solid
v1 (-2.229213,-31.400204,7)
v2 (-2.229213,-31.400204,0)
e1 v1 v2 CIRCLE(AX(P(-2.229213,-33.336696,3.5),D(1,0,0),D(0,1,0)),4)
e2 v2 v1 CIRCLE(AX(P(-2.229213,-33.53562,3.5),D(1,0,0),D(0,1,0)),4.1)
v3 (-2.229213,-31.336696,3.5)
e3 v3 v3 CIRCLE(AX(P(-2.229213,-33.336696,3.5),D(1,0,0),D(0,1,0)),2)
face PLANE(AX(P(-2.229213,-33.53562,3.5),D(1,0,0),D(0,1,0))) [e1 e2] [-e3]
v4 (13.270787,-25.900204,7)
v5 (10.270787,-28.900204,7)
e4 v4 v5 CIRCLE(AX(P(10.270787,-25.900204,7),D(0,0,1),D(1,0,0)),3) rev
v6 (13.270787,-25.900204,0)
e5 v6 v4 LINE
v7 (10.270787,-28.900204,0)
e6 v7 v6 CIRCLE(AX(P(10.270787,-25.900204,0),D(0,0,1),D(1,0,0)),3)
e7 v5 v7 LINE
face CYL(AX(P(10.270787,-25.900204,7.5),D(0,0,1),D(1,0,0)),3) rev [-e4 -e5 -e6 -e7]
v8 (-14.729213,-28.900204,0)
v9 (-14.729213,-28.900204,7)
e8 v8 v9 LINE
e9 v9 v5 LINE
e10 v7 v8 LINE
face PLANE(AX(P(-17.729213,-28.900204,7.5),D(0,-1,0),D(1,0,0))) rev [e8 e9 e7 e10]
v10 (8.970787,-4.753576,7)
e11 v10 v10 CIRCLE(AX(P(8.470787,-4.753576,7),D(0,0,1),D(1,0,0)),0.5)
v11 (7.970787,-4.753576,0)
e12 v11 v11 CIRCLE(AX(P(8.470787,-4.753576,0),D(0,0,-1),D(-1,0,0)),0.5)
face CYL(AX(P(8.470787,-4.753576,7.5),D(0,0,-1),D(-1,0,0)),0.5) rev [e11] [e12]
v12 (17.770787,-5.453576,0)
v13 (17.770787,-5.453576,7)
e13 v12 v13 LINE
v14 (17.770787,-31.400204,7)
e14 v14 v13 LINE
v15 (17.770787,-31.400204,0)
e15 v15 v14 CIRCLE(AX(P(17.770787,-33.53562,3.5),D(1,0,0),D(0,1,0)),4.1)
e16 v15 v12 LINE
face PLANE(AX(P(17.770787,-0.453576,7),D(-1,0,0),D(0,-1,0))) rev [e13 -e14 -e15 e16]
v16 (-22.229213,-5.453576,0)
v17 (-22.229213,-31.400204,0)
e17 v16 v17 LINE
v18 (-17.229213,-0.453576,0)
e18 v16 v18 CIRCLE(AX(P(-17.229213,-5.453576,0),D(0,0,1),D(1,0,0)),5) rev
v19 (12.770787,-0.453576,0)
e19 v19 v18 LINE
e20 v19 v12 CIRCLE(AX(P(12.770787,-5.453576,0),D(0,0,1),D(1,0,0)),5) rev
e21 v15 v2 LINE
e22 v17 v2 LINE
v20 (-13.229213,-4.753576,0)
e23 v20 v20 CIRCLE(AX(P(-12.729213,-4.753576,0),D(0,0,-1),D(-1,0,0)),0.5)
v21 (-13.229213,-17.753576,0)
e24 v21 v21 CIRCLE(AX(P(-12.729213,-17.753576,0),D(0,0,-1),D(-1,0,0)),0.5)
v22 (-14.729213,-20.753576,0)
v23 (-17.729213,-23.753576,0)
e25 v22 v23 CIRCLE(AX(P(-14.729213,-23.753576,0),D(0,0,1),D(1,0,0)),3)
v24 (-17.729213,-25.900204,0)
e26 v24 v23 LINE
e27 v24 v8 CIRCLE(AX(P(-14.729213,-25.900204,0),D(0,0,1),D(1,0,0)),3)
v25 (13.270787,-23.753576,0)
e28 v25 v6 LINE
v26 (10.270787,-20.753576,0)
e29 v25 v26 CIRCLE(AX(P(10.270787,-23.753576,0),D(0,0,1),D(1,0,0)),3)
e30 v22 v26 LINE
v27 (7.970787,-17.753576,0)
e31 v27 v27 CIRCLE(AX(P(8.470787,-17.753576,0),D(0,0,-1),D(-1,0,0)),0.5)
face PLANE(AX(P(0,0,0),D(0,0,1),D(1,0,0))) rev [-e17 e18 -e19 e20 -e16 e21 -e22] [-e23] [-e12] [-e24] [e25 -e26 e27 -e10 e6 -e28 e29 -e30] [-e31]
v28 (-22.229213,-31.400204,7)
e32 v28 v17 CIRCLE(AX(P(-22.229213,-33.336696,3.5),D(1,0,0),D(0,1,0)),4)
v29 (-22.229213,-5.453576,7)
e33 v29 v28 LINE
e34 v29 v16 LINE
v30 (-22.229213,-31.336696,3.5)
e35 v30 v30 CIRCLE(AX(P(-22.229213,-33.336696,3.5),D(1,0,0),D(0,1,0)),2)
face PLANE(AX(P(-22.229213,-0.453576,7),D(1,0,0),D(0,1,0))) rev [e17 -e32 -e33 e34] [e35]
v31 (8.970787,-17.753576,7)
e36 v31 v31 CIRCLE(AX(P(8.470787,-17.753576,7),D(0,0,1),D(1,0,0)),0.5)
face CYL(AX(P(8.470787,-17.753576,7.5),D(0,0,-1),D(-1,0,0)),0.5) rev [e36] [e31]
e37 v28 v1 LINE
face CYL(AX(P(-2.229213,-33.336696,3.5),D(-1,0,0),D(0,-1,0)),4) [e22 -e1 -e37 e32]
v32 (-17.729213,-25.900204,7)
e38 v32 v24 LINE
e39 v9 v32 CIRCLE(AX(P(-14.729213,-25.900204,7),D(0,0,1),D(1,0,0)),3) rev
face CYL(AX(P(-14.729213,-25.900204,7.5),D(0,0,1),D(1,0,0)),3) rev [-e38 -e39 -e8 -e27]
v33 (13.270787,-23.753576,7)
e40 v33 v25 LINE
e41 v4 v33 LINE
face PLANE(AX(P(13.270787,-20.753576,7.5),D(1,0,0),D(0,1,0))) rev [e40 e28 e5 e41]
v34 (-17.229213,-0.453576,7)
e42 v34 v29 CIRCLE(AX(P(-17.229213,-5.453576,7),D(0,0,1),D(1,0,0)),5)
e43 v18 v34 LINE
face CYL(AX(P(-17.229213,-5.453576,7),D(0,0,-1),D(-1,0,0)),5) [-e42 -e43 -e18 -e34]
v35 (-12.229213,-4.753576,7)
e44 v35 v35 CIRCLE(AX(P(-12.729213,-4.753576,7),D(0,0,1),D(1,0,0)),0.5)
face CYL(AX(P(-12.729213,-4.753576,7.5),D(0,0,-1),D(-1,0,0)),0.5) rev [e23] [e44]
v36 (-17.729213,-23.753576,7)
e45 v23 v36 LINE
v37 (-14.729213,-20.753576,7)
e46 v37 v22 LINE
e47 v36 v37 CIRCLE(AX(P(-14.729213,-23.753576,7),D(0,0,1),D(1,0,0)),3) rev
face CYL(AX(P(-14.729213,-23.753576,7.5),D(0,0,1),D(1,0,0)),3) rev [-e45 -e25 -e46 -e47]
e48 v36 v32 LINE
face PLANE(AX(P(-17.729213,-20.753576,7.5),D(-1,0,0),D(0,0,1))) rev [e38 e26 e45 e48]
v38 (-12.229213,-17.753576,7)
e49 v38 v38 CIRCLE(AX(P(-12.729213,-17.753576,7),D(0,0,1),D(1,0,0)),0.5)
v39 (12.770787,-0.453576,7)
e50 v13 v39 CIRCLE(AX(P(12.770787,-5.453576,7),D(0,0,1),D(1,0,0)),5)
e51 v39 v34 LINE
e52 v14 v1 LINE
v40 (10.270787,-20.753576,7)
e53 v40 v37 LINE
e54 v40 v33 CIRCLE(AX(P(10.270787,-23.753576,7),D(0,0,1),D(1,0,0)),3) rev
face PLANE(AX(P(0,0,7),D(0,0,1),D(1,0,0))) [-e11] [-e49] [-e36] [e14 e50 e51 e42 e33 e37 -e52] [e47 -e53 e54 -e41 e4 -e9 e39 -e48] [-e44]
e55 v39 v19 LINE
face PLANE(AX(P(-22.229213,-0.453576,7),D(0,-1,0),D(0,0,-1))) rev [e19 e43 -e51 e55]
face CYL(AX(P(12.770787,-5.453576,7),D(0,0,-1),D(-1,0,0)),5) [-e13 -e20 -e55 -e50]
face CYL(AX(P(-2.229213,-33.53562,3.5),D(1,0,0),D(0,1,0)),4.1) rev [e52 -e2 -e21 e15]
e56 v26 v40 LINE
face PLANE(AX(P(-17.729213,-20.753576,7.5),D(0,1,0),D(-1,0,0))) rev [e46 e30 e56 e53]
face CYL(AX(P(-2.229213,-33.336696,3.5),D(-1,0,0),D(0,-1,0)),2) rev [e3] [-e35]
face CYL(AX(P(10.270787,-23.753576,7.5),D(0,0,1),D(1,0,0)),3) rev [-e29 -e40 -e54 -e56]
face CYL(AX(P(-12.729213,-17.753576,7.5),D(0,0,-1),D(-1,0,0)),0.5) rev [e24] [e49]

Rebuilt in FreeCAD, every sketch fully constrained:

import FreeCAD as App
import Part
import Sketcher
Q = App.Units.Quantity


def edges_at(feature, points):
    """Names of the edges that pass closest to the given points."""
    edges = feature.Shape.Edges
    near = lambda p: min(range(len(edges)), key=lambda i: edges[i].distToShape(Part.Vertex(*p))[0])
    return sorted({f"Edge{near(p) + 1}" for p in points})

doc = App.newDocument("Part")
body = doc.addObject("PartDesign::Body", "Body")

# Sketch on XY plane
sketch1 = body.newObject("Sketcher::SketchObject", "Sketch")
sketch1.AttachmentSupport = (doc.getObject("XY_Plane"), [""])
sketch1.MapMode = "FlatFace"
sketch1.addGeometry([
    Part.LineSegment(App.Vector(-22, 0, 0), App.Vector(-22, -34, 0)),
    Part.LineSegment(App.Vector(-22, -34, 0), App.Vector(18, -34, 0)),
    Part.LineSegment(App.Vector(18, -34, 0), App.Vector(18, 0, 0)),
    Part.LineSegment(App.Vector(18, 0, 0), App.Vector(-22, 0, 0)),
], False)
sketch1.addConstraint([
    Sketcher.Constraint("Coincident", 0, 2, 1, 1),
    Sketcher.Constraint("Coincident", 1, 2, 2, 1),
    Sketcher.Constraint("Coincident", 2, 2, 3, 1),
    Sketcher.Constraint("Coincident", 3, 2, 0, 1),
    Sketcher.Constraint("Vertical", 0),
    Sketcher.Constraint("Horizontal", 1),
    Sketcher.Constraint("Vertical", 2),
    Sketcher.Constraint("Horizontal", 3),
    Sketcher.Constraint("DistanceX", 1, 1, 1, 2, Q("40 mm")),
    Sketcher.Constraint("DistanceY", 0, 2, 0, 1, Q("33.082044 mm")),
    Sketcher.Constraint("DistanceY", 0, 2, -1, 1, Q("33.53562 mm")),
    Sketcher.Constraint("DistanceX", 0, 2, -1, 1, Q("22.229213 mm")),
])
pad1 = body.newObject("PartDesign::Pad", "Pad")
pad1.Profile = sketch1
pad1.Length = 7

# Sketch on YZ plane
sketch2 = body.newObject("Sketcher::SketchObject", "Sketch001")
sketch2.AttachmentSupport = (doc.getObject("YZ_Plane"), [""])
sketch2.MapMode = "FlatFace"
sketch2.AttachmentOffset = App.Placement(App.Vector(0, 0, 17.770787), App.Rotation())
sketch2.addGeometry(Part.Circle(App.Vector(-33.5, 3.5, 0), App.Vector(0, 0, 1), 4.1), False)
sketch2.addConstraint([
    Sketcher.Constraint("Diameter", 0, Q("8.2 mm")),
    Sketcher.Constraint("DistanceY", -1, 1, 0, 3, Q("3.5 mm")),
    Sketcher.Constraint("DistanceX", 0, 3, -1, 1, Q("33.53562 mm")),
])
pocket1 = body.newObject("PartDesign::Pocket", "Pocket")
pocket1.Profile = sketch2
pocket1.Length = 20

# Sketch on YZ plane
sketch3 = body.newObject("Sketcher::SketchObject", "Sketch002")
sketch3.AttachmentSupport = (doc.getObject("YZ_Plane"), [""])
sketch3.MapMode = "FlatFace"
sketch3.AttachmentOffset = App.Placement(App.Vector(0, 0, -13.229213), App.Rotation())
sketch3.addGeometry([
    Part.Circle(App.Vector(-33.3, 3.5, 0), App.Vector(0, 0, 1), 4),
    Part.Circle(App.Vector(-33.3, 3.5, 0), App.Vector(0, 0, 1), 2),
], False)
sketch3.addConstraint([
    Sketcher.Constraint("Coincident", 1, 3, 0, 3),
    Sketcher.Constraint("Diameter", 0, Q("8 mm")),
    Sketcher.Constraint("Diameter", 1, Q("4 mm")),
    Sketcher.Constraint("DistanceY", -1, 1, 0, 3, Q("3.5 mm")),
    Sketcher.Constraint("DistanceX", 0, 3, -1, 1, Q("33.336696 mm")),
])
pad2 = body.newObject("PartDesign::Pad", "Pad001")
pad2.Profile = sketch3
pad2.Type = "TwoLengths"
pad2.Length = 11
pad2.Length2 = 9
doc.recompute()

fillet = body.newObject("PartDesign::Fillet", "Fillet")
fillet.Base = (pad2, edges_at(pad2, [(-22.229, -0.454, 3.5), (17.771, -0.454, 3.5)]))
fillet.Radius = 5

# Sketch on XY plane
sketch4 = body.newObject("Sketcher::SketchObject", "Sketch003")
sketch4.AttachmentSupport = (doc.getObject("XY_Plane"), [""])
sketch4.MapMode = "FlatFace"
sketch4.addGeometry([
    Part.Circle(App.Vector(8.5, -4.8, 0), App.Vector(0, 0, 1), 0.5),  # 0
    Part.Circle(App.Vector(-12.7, -4.8, 0), App.Vector(0, 0, 1), 0.5),  # 1
    Part.Circle(App.Vector(-12.7, -17.8, 0), App.Vector(0, 0, 1), 0.5),  # 2
    Part.Circle(App.Vector(8.5, -17.8, 0), App.Vector(0, 0, 1), 0.5),  # 3
    Part.LineSegment(App.Vector(13.3, -20.8, 0), App.Vector(13.3, -28.9, 0)),  # 4
    Part.LineSegment(App.Vector(13.3, -28.9, 0), App.Vector(-17.7, -28.9, 0)),  # 5
    Part.LineSegment(App.Vector(-17.7, -28.9, 0), App.Vector(-17.7, -20.8, 0)),  # 6
    Part.LineSegment(App.Vector(-17.7, -20.8, 0), App.Vector(13.3, -20.8, 0)),  # 7
], False)
sketch4.addConstraint([
    Sketcher.Constraint("Coincident", 4, 2, 5, 1),
    Sketcher.Constraint("Coincident", 5, 2, 6, 1),
    Sketcher.Constraint("Coincident", 6, 2, 7, 1),
    Sketcher.Constraint("Coincident", 7, 2, 4, 1),
    Sketcher.Constraint("Vertical", 4),
    Sketcher.Constraint("Horizontal", 5),
    Sketcher.Constraint("Vertical", 6),
    Sketcher.Constraint("Horizontal", 7),
    Sketcher.Constraint("Equal", 0, 1),
    Sketcher.Constraint("Equal", 1, 2),
    Sketcher.Constraint("Equal", 2, 3),
    Sketcher.Constraint("Horizontal", 0, 3, 1, 3),
    Sketcher.Constraint("Horizontal", 2, 3, 3, 3),
    Sketcher.Constraint("Vertical", 1, 3, 2, 3),
    Sketcher.Constraint("Vertical", 0, 3, 3, 3),
    Sketcher.Constraint("Diameter", 0, Q("1 mm")),
    Sketcher.Constraint("DistanceX", 5, 2, 5, 1, Q("31 mm")),
    Sketcher.Constraint("DistanceY", 2, 3, 1, 3, Q("13 mm")),
    Sketcher.Constraint("DistanceX", 2, 3, 4, 2, Q("26 mm")),
    Sketcher.Constraint("DistanceY", 6, 2, 2, 3, Q("3 mm")),
    Sketcher.Constraint("DistanceX", 1, 3, 0, 3, Q("21.2 mm")),
    Sketcher.Constraint("DistanceY", 4, 2, 4, 1, Q("8.146628 mm")),
    Sketcher.Constraint("DistanceX", -1, 1, 0, 3, Q("8.470787 mm")),
    Sketcher.Constraint("DistanceY", 0, 3, -1, 1, Q("4.753576 mm")),
])
pocket2 = body.newObject("PartDesign::Pocket", "Pocket001")
pocket2.Profile = sketch4
pocket2.Type = "ThroughAll"
pocket2.Reversed = True
doc.recompute()

fillet2 = body.newObject("PartDesign::Fillet", "Fillet001")
fillet2.Base = (pocket2, edges_at(pocket2, [
    (-17.729, -20.754, 3.5),
    (-17.729, -28.9, 3.5),
    (13.271, -28.9, 3.5),
    (13.271, -20.754, 3.5),
]))
fillet2.Radius = 3

# Sketch on YZ plane
sketch5 = body.newObject("Sketcher::SketchObject", "Sketch004")
sketch5.AttachmentSupport = (doc.getObject("YZ_Plane"), [""])
sketch5.MapMode = "FlatFace"
sketch5.AttachmentOffset = App.Placement(App.Vector(0, 0, -22.229213), App.Rotation())
sketch5.addGeometry(Part.Circle(App.Vector(-33.3, 3.5, 0), App.Vector(0, 0, 1), 2), False)
sketch5.addConstraint([
    Sketcher.Constraint("Diameter", 0, Q("4 mm")),
    Sketcher.Constraint("DistanceY", -1, 1, 0, 3, Q("3.5 mm")),
    Sketcher.Constraint("DistanceX", 0, 3, -1, 1, Q("33.336696 mm")),
])
pocket3 = body.newObject("PartDesign::Pocket", "Pocket002")
pocket3.Profile = sketch5
pocket3.Type = "ThroughAll"
pocket3.Reversed = True

doc.recompute()
